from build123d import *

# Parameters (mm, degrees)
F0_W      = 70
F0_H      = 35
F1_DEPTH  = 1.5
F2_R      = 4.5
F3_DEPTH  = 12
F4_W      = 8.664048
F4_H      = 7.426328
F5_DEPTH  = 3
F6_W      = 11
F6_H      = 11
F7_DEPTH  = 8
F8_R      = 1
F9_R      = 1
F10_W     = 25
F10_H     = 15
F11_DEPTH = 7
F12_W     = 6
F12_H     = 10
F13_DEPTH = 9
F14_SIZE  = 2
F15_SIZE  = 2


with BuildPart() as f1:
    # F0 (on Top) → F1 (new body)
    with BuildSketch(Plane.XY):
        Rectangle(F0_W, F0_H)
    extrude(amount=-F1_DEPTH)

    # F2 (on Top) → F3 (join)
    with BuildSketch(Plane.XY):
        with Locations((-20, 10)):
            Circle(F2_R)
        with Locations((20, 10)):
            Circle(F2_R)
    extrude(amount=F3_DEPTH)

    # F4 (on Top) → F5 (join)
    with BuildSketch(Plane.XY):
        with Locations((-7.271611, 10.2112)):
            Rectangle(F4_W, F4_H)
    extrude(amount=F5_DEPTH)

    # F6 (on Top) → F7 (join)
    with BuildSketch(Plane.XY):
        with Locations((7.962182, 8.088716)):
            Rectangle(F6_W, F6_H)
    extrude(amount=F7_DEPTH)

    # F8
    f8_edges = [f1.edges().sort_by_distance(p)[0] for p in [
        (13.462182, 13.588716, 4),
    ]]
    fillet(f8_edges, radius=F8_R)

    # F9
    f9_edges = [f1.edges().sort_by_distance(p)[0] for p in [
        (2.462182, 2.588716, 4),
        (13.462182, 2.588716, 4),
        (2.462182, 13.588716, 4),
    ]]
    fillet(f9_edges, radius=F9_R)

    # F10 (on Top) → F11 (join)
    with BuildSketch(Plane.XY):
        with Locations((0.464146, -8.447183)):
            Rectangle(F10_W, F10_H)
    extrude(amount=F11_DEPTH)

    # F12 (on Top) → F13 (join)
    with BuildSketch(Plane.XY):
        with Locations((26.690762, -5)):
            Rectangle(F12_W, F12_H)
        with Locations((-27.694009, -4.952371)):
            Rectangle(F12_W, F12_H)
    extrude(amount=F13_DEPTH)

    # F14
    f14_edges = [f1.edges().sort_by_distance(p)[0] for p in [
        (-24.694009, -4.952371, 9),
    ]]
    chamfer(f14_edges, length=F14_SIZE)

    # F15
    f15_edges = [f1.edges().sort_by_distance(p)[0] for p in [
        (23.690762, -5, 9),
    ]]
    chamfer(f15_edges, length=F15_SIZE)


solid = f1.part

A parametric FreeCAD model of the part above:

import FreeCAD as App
import Part
import Sketcher

V = App.Vector
Q = App.Units.Quantity


def edges_at(feature, points):
    """Names of the edges that pass closest to the given points."""
    edges = feature.Shape.Edges
    near = lambda p: min(range(len(edges)), key=lambda i: edges[i].distToShape(Part.Vertex(*p))[0])
    return sorted({f"Edge{near(p) + 1}" for p in points})

doc = App.newDocument("Part")
body = doc.addObject("PartDesign::Body", "Body")

# Sketch on XY plane
sketch1 = doc.addObject("Sketcher::SketchObject", "Sketch")
body.addObject(sketch1)
sketch1.AttachmentSupport = (doc.XY_Plane, [""])
sketch1.MapMode = "FlatFace"
sketch1.addGeometry(Part.LineSegment(V(-35, 18, 0), V(-35, -18, 0)), False)
sketch1.addGeometry(Part.LineSegment(V(-35, -18, 0), V(35, -18, 0)), False)
sketch1.addGeometry(Part.LineSegment(V(35, -18, 0), V(35, 18, 0)), False)
sketch1.addGeometry(Part.LineSegment(V(35, 18, 0), V(-35, 18, 0)), False)
sketch1.addConstraint(Sketcher.Constraint("Coincident", 0, 2, 1, 1))
sketch1.addConstraint(Sketcher.Constraint("Coincident", 1, 2, 2, 1))
sketch1.addConstraint(Sketcher.Constraint("Coincident", 2, 2, 3, 1))
sketch1.addConstraint(Sketcher.Constraint("Coincident", 3, 2, 0, 1))
sketch1.addConstraint(Sketcher.Constraint("Vertical", 0))
sketch1.addConstraint(Sketcher.Constraint("Horizontal", 1))
sketch1.addConstraint(Sketcher.Constraint("Vertical", 2))
sketch1.addConstraint(Sketcher.Constraint("Horizontal", 3))
sketch1.addConstraint(Sketcher.Constraint("Symmetric", 0, 2, 2, 2, -1, 1))
sketch1.addConstraint(Sketcher.Constraint("DistanceX", 1, 1, 1, 2, Q("70 mm")))
sketch1.addConstraint(Sketcher.Constraint("DistanceY", 0, 2, 0, 1, Q("35 mm")))
pad1 = doc.addObject("PartDesign::Pad", "Pad")
body.addObject(pad1)
pad1.Profile = sketch1
pad1.Length = 1.5
pad1.Reversed = True

# Sketch on XY plane
sketch2 = doc.addObject("Sketcher::SketchObject", "Sketch001")
body.addObject(sketch2)
sketch2.AttachmentSupport = (doc.XY_Plane, [""])
sketch2.MapMode = "FlatFace"
sketch2.addGeometry(Part.Circle(V(-20, 10, 0), V(0, 0, 1), 4.5), False)
sketch2.addGeometry(Part.Circle(V(20, 10, 0), V(0, 0, 1), 4.5), False)
sketch2.addConstraint(Sketcher.Constraint("Equal", 0, 1))
sketch2.addConstraint(Sketcher.Constraint("Symmetric", 0, 3, 1, 3, -2))
sketch2.addConstraint(Sketcher.Constraint("Diameter", 0, Q("9 mm")))
sketch2.addConstraint(Sketcher.Constraint("DistanceX", 0, 3, -1, 1, Q("20 mm")))
sketch2.addConstraint(Sketcher.Constraint("DistanceY", -1, 1, 0, 3, Q("10 mm")))
pad2 = doc.addObject("PartDesign::Pad", "Pad001")
body.addObject(pad2)
pad2.Profile = sketch2
pad2.Length = 12

# Sketch on XY plane
sketch3 = doc.addObject("Sketcher::SketchObject", "Sketch002")
body.addObject(sketch3)
sketch3.AttachmentSupport = (doc.XY_Plane, [""])
sketch3.MapMode = "FlatFace"
sketch3.addGeometry(Part.LineSegment(V(-12, 14, 0), V(-12, 6, 0)), False)
sketch3.addGeometry(Part.LineSegment(V(-12, 6, 0), V(-3, 6, 0)), False)
sketch3.addGeometry(Part.LineSegment(V(-3, 6, 0), V(-3, 14, 0)), False)
sketch3.addGeometry(Part.LineSegment(V(-3, 14, 0), V(-12, 14, 0)), False)
sketch3.addConstraint(Sketcher.Constraint("Coincident", 0, 2, 1, 1))
sketch3.addConstraint(Sketcher.Constraint("Coincident", 1, 2, 2, 1))
sketch3.addConstraint(Sketcher.Constraint("Coincident", 2, 2, 3, 1))
sketch3.addConstraint(Sketcher.Constraint("Coincident", 3, 2, 0, 1))
sketch3.addConstraint(Sketcher.Constraint("Vertical", 0))
sketch3.addConstraint(Sketcher.Constraint("Horizontal", 1))
sketch3.addConstraint(Sketcher.Constraint("Vertical", 2))
sketch3.addConstraint(Sketcher.Constraint("Horizontal", 3))
sketch3.addConstraint(Sketcher.Constraint("DistanceX", 1, 1, 1, 2, Q("8.664048 mm")))
sketch3.addConstraint(Sketcher.Constraint("DistanceY", 0, 2, 0, 1, Q("7.426328 mm")))
sketch3.addConstraint(Sketcher.Constraint("DistanceX", 0, 2, -1, 1, Q("11.603635 mm")))
sketch3.addConstraint(Sketcher.Constraint("DistanceY", -1, 1, 0, 2, Q("6.498036 mm")))
pad3 = doc.addObject("PartDesign::Pad", "Pad002")
body.addObject(pad3)
pad3.Profile = sketch3
pad3.Length = 3

# Sketch on XY plane
sketch4 = doc.addObject("Sketcher::SketchObject", "Sketch003")
body.addObject(sketch4)
sketch4.AttachmentSupport = (doc.XY_Plane, [""])
sketch4.MapMode = "FlatFace"
sketch4.addGeometry(Part.LineSegment(V(2, 14, 0), V(2, 3, 0)), False)
sketch4.addGeometry(Part.LineSegment(V(2, 3, 0), V(13, 3, 0)), False)
sketch4.addGeometry(Part.LineSegment(V(13, 3, 0), V(13, 14, 0)), False)
sketch4.addGeometry(Part.LineSegment(V(13, 14, 0), V(2, 14, 0)), False)
sketch4.addConstraint(Sketcher.Constraint("Coincident", 0, 2, 1, 1))
sketch4.addConstraint(Sketcher.Constraint("Coincident", 1, 2, 2, 1))
sketch4.addConstraint(Sketcher.Constraint("Coincident", 2, 2, 3, 1))
sketch4.addConstraint(Sketcher.Constraint("Coincident", 3, 2, 0, 1))
sketch4.addConstraint(Sketcher.Constraint("Vertical", 0))
sketch4.addConstraint(Sketcher.Constraint("Horizontal", 1))
sketch4.addConstraint(Sketcher.Constraint("Vertical", 2))
sketch4.addConstraint(Sketcher.Constraint("Horizontal", 3))
sketch4.addConstraint(Sketcher.Constraint("Equal", 3, 0))
sketch4.addConstraint(Sketcher.Constraint("DistanceX", 1, 1, 1, 2, Q("11 mm")))
sketch4.addConstraint(Sketcher.Constraint("DistanceX", -1, 1, 0, 2, Q("2.462182 mm")))
sketch4.addConstraint(Sketcher.Constraint("DistanceY", -1, 1, 0, 2, Q("2.588716 mm")))
pad4 = doc.addObject("PartDesign::Pad", "Pad003")
body.addObject(pad4)
pad4.Profile = sketch4
pad4.Length = 8
doc.recompute()

fillet = doc.addObject("PartDesign::Fillet", "Fillet")
body.addObject(fillet)
fillet.Base = (pad4, edges_at(pad4, [(13.462, 13.589, 4)]))
fillet.Radius = 1
doc.recompute()

fillet2 = doc.addObject("PartDesign::Fillet", "Fillet001")
body.addObject(fillet2)
fillet2.Base = (fillet, edges_at(fillet, [(2.462, 2.589, 4), (13.462, 2.589, 4), (2.462, 13.589, 4)]))
fillet2.Radius = 1

# Sketch on XY plane
sketch5 = doc.addObject("Sketcher::SketchObject", "Sketch004")
body.addObject(sketch5)
sketch5.AttachmentSupport = (doc.XY_Plane, [""])
sketch5.MapMode = "FlatFace"
sketch5.addGeometry(Part.LineSegment(V(-12, -1, 0), V(-12, -16, 0)), False)
sketch5.addGeometry(Part.LineSegment(V(-12, -16, 0), V(13, -16, 0)), False)
sketch5.addGeometry(Part.LineSegment(V(13, -16, 0), V(13, -1, 0)), False)
sketch5.addGeometry(Part.LineSegment(V(13, -1, 0), V(-12, -1, 0)), False)
sketch5.addConstraint(Sketcher.Constraint("Coincident", 0, 2, 1, 1))
sketch5.addConstraint(Sketcher.Constraint("Coincident", 1, 2, 2, 1))
sketch5.addConstraint(Sketcher.Constraint("Coincident", 2, 2, 3, 1))
sketch5.addConstraint(Sketcher.Constraint("Coincident", 3, 2, 0, 1))
sketch5.addConstraint(Sketcher.Constraint("Vertical", 0))
sketch5.addConstraint(Sketcher.Constraint("Horizontal", 1))
sketch5.addConstraint(Sketcher.Constraint("Vertical", 2))
sketch5.addConstraint(Sketcher.Constraint("Horizontal", 3))
sketch5.addConstraint(Sketcher.Constraint("DistanceX", 1, 1, 1, 2, Q("25 mm")))
sketch5.addConstraint(Sketcher.Constraint("DistanceY", 0, 2, 0, 1, Q("15 mm")))
sketch5.addConstraint(Sketcher.Constraint("DistanceX", 0, 2, -1, 1, Q("12.035854 mm")))
sketch5.addConstraint(Sketcher.Constraint("DistanceY", 0, 2, -1, 1, Q("15.947183 mm")))
pad5 = doc.addObject("PartDesign::Pad", "Pad004")
body.addObject(pad5)
pad5.Profile = sketch5
pad5.Length = 7

# Sketch on XY plane
sketch6 = doc.addObject("Sketcher::SketchObject", "Sketch005")
body.addObject(sketch6)
sketch6.AttachmentSupport = (doc.XY_Plane, [""])
sketch6.MapMode = "FlatFace"
sketch6.addGeometry(Part.LineSegment(V(24, 0, 0), V(24, -10, 0)), False)
sketch6.addGeometry(Part.LineSegment(V(24, -10, 0), V(30, -10, 0)), False)
sketch6.addGeometry(Part.LineSegment(V(30, -10, 0), V(30, 0, 0)), False)
sketch6.addGeometry(Part.LineSegment(V(30, 0, 0), V(24, 0, 0)), False)
sketch6.addGeometry(Part.LineSegment(V(-31, 0, 0), V(-31, -10, 0)), False)
sketch6.addGeometry(Part.LineSegment(V(-31, -10, 0), V(-25, -10, 0)), False)
sketch6.addGeometry(Part.LineSegment(V(-25, -10, 0), V(-25, 0, 0)), False)
sketch6.addGeometry(Part.LineSegment(V(-25, 0, 0), V(-31, 0, 0)), False)
sketch6.addConstraint(Sketcher.Constraint("Coincident", 0, 2, 1, 1))
sketch6.addConstraint(Sketcher.Constraint("Coincident", 1, 2, 2, 1))
sketch6.addConstraint(Sketcher.Constraint("Coincident", 2, 2, 3, 1))
sketch6.addConstraint(Sketcher.Constraint("Coincident", 3, 2, 0, 1))
sketch6.addConstraint(Sketcher.Constraint("Coincident", 4, 2, 5, 1))
sketch6.addConstraint(Sketcher.Constraint("Coincident", 5, 2, 6, 1))
sketch6.addConstraint(Sketcher.Constraint("Coincident", 6, 2, 7, 1))
sketch6.addConstraint(Sketcher.Constraint("Coincident", 7, 2, 4, 1))
sketch6.addConstraint(Sketcher.Constraint("Vertical", 0))
sketch6.addConstraint(Sketcher.Constraint("Horizontal", 1))
sketch6.addConstraint(Sketcher.Constraint("Vertical", 2))
sketch6.addConstraint(Sketcher.Constraint("Horizontal", 3))
sketch6.addConstraint(Sketcher.Constraint("Vertical", 4))
sketch6.addConstraint(Sketcher.Constraint("Horizontal", 5))
sketch6.addConstraint(Sketcher.Constraint("Vertical", 6))
sketch6.addConstraint(Sketcher.Constraint("Horizontal", 7))
sketch6.addConstraint(Sketcher.Constraint("PointOnObject", 2, 2, -1))
sketch6.addConstraint(Sketcher.Constraint("Equal", 3, 5))
sketch6.addConstraint(Sketcher.Constraint("Equal", 2, 4))
sketch6.addConstraint(Sketcher.Constraint("DistanceX", 1, 1, 1, 2, Q("6 mm")))
sketch6.addConstraint(Sketcher.Constraint("DistanceY", 0, 2, 0, 1, Q("10 mm")))
sketch6.addConstraint(Sketcher.Constraint("DistanceX", -1, 1, 0, 2, Q("23.690762 mm")))
sketch6.addConstraint(Sketcher.Constraint("DistanceX", 4, 2, -1, 1, Q("30.694009 mm")))
sketch6.addConstraint(Sketcher.Constraint("DistanceY", 4, 2, -1, 1, Q("9.952371 mm")))
pad6 = doc.addObject("PartDesign::Pad", "Pad005")
body.addObject(pad6)
pad6.Profile = sketch6
pad6.Length = 9
doc.recompute()

chamfer = doc.addObject("PartDesign::Chamfer", "Chamfer")
body.addObject(chamfer)
chamfer.Base = (pad6, edges_at(pad6, [(-24.694, -4.952, 9)]))
chamfer.Size = 2
doc.recompute()

chamfer2 = doc.addObject("PartDesign::Chamfer", "Chamfer001")
body.addObject(chamfer2)
chamfer2.Base = (chamfer, edges_at(chamfer, [(23.691, -5, 9)]))
chamfer2.Size = 2

doc.recompute()
